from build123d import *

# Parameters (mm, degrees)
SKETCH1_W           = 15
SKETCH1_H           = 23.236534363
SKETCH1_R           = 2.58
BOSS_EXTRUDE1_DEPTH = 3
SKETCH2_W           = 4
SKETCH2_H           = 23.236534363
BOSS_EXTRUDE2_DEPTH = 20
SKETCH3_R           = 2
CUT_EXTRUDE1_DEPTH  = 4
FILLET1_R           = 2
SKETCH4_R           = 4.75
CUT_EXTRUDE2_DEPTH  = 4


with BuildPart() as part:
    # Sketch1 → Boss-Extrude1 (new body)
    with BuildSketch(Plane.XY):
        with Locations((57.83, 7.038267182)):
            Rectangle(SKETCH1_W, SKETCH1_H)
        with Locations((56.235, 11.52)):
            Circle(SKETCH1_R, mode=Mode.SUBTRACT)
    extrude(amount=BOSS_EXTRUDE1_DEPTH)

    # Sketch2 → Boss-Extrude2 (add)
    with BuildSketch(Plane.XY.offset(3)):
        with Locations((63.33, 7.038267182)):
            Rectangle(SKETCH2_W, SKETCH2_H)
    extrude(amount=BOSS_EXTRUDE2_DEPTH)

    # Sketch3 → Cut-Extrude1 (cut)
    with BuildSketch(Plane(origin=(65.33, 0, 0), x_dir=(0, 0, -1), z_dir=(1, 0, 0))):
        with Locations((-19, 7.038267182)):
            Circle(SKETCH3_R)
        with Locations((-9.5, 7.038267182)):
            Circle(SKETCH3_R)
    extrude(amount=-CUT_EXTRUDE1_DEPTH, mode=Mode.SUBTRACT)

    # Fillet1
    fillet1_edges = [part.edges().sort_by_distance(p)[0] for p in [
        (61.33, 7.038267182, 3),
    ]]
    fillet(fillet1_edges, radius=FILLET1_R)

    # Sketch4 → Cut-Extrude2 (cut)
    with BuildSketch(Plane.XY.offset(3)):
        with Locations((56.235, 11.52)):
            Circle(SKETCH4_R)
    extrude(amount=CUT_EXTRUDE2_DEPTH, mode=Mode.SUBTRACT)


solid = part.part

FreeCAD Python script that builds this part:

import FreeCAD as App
import Part
import Sketcher

V = App.Vector


def edges_at(feature, points):
    """Names of the edges that pass closest to the given points."""
    edges = feature.Shape.Edges
    near = lambda p: min(range(len(edges)), key=lambda i: edges[i].distToShape(Part.Vertex(*p))[0])
    return sorted({f"Edge{near(p) + 1}" for p in points})


def add_polygon(sketch, points):
    """Adds a closed chain of lines whose ends are joined by coincident constraints."""
    first, n = sketch.GeometryCount, len(points)
    for a, b in zip(points, points[1:] + points[:1]):
        sketch.addGeometry(Part.LineSegment(App.Vector(*a, 0), App.Vector(*b, 0)), False)
    for i in range(n):
        sketch.addConstraint(Sketcher.Constraint("Coincident", first + i, 2, first + (i + 1) % n, 1))

doc = App.newDocument("Part")
params = doc.addObject("Spreadsheet::Sheet", "Params")
for row, (alias, value) in enumerate([
    ("sketch1_diameter", "5.16 mm"),
    ("sketch1_width", "15 mm"),
    ("pad1_length", "3 mm"),
    ("sketch2_width", "4 mm"),
    ("pad2_length", "20 mm"),
    ("sketch3_diameter", "4 mm"),
    ("pocket1_length", "4 mm"),
    ("fillet_radius", "2 mm"),
    ("sketch4_diameter", "9.5 mm"),
    ("pocket2_length", "4 mm"),
], start=1):
    params.set(f"A{row}", alias)
    params.set(f"B{row}", "=" + value)
    params.setAlias(f"B{row}", alias)

body = doc.addObject("PartDesign::Body", "Body")

# Sketch on XY plane
sketch1 = body.newObject("Sketcher::SketchObject", "Sketch")
sketch1.AttachmentSupport = (doc.getObject("XY_Plane"), [""])
sketch1.MapMode = "FlatFace"
add_polygon(sketch1, [(50.3, 18.7), (50.3, -4.6), (65.3, -4.6), (65.3, 18.7)])  # lines 0-3
sketch1.addGeometry(Part.Circle(V(56.2, 11.5, 0), V(0, 0, 1), 2.6), False)  # 4
sketch1.addConstraint(Sketcher.Constraint("Vertical", 0))
sketch1.addConstraint(Sketcher.Constraint("Horizontal", 1))
sketch1.addConstraint(Sketcher.Constraint("Vertical", 2))
sketch1.addConstraint(Sketcher.Constraint("Horizontal", 3))
sketch1.addConstraint(Sketcher.Constraint("Diameter", 4, 5.16))
sketch1.addConstraint(Sketcher.Constraint("DistanceX", 1, 1, 1, 2, 15.0))
sketch1.addConstraint(Sketcher.Constraint("DistanceY", 0, 2, 4, 3, 16.1))
sketch1.addConstraint(Sketcher.Constraint("DistanceY", -1, 1, 4, 3, 11.52))
sketch1.addConstraint(Sketcher.Constraint("DistanceX", -1, 1, 0, 2, 50.33))
sketch1.addConstraint(Sketcher.Constraint("DistanceX", -1, 1, 4, 3, 56.235))
sketch1.addConstraint(Sketcher.Constraint("DistanceY", 0, 2, 0, 1, 23.236534))
sketch1.setExpression("Constraints[8]", "Params.sketch1_diameter")
sketch1.setExpression("Constraints[9]", "Params.sketch1_width")
pad1 = body.newObject("PartDesign::Pad", "Pad")
pad1.Profile = sketch1
pad1.setExpression("Length", "Params.pad1_length")

# Sketch on XY plane
sketch2 = body.newObject("Sketcher::SketchObject", "Sketch001")
sketch2.AttachmentSupport = (doc.getObject("XY_Plane"), [""])
sketch2.MapMode = "FlatFace"
sketch2.AttachmentOffset = App.Placement(V(0, 0, 3), App.Rotation())
add_polygon(sketch2, [(61.3, 18.7), (61.3, -4.6), (65.3, -4.6), (65.3, 18.7)])  # lines 0-3
sketch2.addConstraint(Sketcher.Constraint("Vertical", 0))
sketch2.addConstraint(Sketcher.Constraint("Horizontal", 1))
sketch2.addConstraint(Sketcher.Constraint("Vertical", 2))
sketch2.addConstraint(Sketcher.Constraint("Horizontal", 3))
sketch2.addConstraint(Sketcher.Constraint("DistanceX", 1, 1, 1, 2, 4.0))
sketch2.addConstraint(Sketcher.Constraint("DistanceX", -1, 1, 0, 2, 61.33))
sketch2.addConstraint(Sketcher.Constraint("DistanceY", 0, 2, -1, 1, 4.58))
sketch2.addConstraint(Sketcher.Constraint("DistanceY", 0, 2, 0, 1, 23.236534))
sketch2.setExpression("Constraints[8]", "Params.sketch2_width")
pad2 = body.newObject("PartDesign::Pad", "Pad001")
pad2.Profile = sketch2
pad2.setExpression("Length", "Params.pad2_length")

# Sketch on YZ plane
sketch3 = body.newObject("Sketcher::SketchObject", "Sketch002")
sketch3.AttachmentSupport = (doc.getObject("YZ_Plane"), [""])
sketch3.MapMode = "FlatFace"
sketch3.AttachmentOffset = App.Placement(V(0, 0, 65.33), App.Rotation())
sketch3.addGeometry(Part.Circle(V(7, 19, 0), V(0, 0, 1), 2), False)
sketch3.addGeometry(Part.Circle(V(7, 9.5, 0), V(0, 0, 1), 2), False)
sketch3.addConstraint(Sketcher.Constraint("Equal", 0, 1))
sketch3.addConstraint(Sketcher.Constraint("Vertical", 0, 3, 1, 3))
sketch3.addConstraint(Sketcher.Constraint("Diameter", 0, 4.0))
sketch3.addConstraint(Sketcher.Constraint("DistanceY", -1, 1, 0, 3, 19.0))
sketch3.addConstraint(Sketcher.Constraint("DistanceY", -1, 1, 1, 3, 9.5))
sketch3.addConstraint(Sketcher.Constraint("DistanceX", -1, 1, 0, 3, 7.038267))
sketch3.setExpression("Constraints[2]", "Params.sketch3_diameter")
pocket1 = body.newObject("PartDesign::Pocket", "Pocket")
pocket1.Profile = sketch3
pocket1.setExpression("Length", "Params.pocket1_length")
doc.recompute()

fillet = body.newObject("PartDesign::Fillet", "Fillet")
fillet.Base = (pocket1, edges_at(pocket1, [(61.33, 7.038, 3)]))
fillet.setExpression("Radius", "Params.fillet_radius")

# Sketch on XY plane
sketch4 = body.newObject("Sketcher::SketchObject", "Sketch003")
sketch4.AttachmentSupport = (doc.getObject("XY_Plane"), [""])
sketch4.MapMode = "FlatFace"
sketch4.AttachmentOffset = App.Placement(V(0, 0, 3), App.Rotation())
sketch4.addGeometry(Part.Circle(V(56.2, 11.5, 0), V(0, 0, 1), 4.8), False)
sketch4.addConstraint(Sketcher.Constraint("Diameter", 0, 9.5))
sketch4.addConstraint(Sketcher.Constraint("DistanceY", -1, 1, 0, 3, 11.52))
sketch4.addConstraint(Sketcher.Constraint("DistanceX", -1, 1, 0, 3, 56.235))
sketch4.setExpression("Constraints[0]", "Params.sketch4_diameter")
pocket2 = body.newObject("PartDesign::Pocket", "Pocket001")
pocket2.Profile = sketch4
pocket2.setExpression("Length", "Params.pocket2_length")
pocket2.Reversed = True

doc.recompute()
